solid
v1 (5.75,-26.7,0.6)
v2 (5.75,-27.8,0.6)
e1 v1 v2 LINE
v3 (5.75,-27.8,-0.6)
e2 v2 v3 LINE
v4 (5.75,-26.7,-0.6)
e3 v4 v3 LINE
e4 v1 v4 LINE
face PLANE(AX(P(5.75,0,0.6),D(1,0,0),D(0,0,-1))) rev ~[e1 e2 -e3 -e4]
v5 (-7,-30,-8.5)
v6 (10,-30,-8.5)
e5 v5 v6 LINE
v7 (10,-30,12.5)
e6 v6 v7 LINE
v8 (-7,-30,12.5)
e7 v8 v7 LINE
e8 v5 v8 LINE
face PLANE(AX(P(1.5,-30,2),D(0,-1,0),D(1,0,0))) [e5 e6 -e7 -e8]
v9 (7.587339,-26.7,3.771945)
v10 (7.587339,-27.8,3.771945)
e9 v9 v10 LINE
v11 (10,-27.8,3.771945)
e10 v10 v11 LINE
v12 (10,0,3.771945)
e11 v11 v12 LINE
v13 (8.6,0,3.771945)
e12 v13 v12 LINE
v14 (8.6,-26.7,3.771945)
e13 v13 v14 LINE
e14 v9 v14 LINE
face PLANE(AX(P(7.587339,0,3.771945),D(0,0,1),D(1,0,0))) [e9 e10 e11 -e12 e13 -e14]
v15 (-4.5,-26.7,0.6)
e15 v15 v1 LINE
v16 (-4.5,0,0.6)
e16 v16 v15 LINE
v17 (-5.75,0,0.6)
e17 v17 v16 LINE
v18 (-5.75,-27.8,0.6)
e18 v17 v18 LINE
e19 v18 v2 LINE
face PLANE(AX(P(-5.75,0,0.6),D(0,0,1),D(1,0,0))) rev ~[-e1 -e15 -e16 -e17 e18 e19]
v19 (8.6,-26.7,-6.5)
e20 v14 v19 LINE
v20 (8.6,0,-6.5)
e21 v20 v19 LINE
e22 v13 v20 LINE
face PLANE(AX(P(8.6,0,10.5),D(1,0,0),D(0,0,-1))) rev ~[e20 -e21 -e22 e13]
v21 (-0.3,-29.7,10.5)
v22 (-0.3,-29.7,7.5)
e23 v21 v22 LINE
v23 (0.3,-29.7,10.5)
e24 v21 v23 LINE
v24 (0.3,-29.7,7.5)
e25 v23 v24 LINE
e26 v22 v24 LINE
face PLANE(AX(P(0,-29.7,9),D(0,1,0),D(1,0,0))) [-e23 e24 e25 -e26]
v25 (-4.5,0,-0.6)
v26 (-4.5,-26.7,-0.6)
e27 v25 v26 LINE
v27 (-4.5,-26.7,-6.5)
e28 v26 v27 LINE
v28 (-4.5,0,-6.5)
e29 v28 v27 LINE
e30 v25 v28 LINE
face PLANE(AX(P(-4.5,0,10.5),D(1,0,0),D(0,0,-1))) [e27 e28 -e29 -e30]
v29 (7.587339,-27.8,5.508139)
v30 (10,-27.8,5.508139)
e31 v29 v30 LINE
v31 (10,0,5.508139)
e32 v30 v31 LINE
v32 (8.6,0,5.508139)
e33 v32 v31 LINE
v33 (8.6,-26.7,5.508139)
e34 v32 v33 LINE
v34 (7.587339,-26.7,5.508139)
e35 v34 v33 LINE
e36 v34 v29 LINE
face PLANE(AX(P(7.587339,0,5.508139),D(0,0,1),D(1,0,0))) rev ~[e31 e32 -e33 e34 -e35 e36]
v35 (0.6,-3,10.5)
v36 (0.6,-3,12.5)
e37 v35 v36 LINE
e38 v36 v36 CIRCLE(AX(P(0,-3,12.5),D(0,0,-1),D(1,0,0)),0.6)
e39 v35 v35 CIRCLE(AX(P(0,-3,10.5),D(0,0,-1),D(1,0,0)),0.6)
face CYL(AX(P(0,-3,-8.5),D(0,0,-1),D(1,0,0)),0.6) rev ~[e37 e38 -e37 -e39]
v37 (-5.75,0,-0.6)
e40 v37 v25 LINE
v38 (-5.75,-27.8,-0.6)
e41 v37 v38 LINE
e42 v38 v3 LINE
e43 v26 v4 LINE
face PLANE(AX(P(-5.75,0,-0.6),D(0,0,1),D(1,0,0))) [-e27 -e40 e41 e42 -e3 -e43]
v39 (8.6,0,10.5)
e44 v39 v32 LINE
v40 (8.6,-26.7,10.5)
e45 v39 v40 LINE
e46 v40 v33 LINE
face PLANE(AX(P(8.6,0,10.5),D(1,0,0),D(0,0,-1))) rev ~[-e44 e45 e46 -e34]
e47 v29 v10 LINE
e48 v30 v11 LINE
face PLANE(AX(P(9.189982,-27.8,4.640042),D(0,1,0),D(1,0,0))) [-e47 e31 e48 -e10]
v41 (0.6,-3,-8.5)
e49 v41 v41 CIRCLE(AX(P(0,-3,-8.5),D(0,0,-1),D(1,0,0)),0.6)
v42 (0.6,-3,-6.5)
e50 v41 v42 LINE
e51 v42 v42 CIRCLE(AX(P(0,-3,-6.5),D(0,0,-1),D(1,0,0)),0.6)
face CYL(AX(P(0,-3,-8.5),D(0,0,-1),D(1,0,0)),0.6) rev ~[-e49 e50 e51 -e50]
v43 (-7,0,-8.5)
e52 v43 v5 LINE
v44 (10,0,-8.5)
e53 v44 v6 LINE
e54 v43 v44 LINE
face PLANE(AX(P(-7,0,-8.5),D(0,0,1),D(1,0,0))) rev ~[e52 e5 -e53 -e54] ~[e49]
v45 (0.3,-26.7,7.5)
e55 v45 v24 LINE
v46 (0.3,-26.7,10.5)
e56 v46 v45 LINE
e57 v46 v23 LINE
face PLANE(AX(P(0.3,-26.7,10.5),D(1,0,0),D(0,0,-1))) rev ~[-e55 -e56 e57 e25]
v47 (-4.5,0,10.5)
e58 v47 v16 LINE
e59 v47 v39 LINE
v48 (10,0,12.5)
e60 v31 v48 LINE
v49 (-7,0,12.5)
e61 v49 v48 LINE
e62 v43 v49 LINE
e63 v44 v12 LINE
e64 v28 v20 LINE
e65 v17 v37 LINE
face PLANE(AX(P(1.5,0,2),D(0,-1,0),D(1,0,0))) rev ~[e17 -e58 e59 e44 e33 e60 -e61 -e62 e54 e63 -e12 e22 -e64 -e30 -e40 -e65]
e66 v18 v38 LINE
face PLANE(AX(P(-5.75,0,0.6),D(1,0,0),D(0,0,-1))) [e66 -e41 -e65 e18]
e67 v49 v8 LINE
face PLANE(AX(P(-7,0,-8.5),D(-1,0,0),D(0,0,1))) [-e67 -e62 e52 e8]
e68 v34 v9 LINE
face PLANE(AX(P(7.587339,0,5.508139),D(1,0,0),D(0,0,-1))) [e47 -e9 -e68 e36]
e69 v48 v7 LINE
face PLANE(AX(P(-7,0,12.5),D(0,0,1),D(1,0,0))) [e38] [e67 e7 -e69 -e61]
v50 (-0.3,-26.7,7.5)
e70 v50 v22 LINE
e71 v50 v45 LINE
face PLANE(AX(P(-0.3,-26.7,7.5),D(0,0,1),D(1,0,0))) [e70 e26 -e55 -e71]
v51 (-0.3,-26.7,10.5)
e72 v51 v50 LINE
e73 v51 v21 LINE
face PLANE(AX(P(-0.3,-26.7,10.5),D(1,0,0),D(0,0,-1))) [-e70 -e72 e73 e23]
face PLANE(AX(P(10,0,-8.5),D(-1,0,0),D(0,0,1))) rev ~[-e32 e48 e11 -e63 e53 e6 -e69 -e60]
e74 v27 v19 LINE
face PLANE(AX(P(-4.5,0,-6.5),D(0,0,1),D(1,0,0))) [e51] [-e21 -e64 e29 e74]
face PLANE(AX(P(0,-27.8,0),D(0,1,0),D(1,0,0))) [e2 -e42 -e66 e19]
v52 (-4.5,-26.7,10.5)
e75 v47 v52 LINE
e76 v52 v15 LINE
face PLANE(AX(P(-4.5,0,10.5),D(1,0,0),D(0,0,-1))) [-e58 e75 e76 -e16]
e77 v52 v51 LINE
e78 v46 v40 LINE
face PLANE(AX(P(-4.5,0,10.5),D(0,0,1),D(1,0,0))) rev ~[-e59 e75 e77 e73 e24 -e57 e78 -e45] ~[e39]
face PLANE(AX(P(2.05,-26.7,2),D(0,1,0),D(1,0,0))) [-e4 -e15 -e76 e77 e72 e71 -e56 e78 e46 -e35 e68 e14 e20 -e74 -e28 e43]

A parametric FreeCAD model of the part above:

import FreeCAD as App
import Part
import Sketcher

doc = App.newDocument("Part")
body = doc.addObject("PartDesign::Body", "Body")

sketch1 = body.newObject("Sketcher::SketchObject", "Sketch")
sketch1.AttachmentSupport = (doc.getObject("XZ_Plane"), [""])
sketch1.MapMode = "FlatFace"
sketch1.addGeometry([
    Part.LineSegment(App.Vector(-7, 12, 0), App.Vector(-7, -8, 0)),
    Part.LineSegment(App.Vector(-7, -8, 0), App.Vector(10, -8, 0)),
    Part.LineSegment(App.Vector(10, -8, 0), App.Vector(10, 12, 0)),
    Part.LineSegment(App.Vector(10, 12, 0), App.Vector(-7, 12, 0)),
], False)
sketch1.addConstraint([
    Sketcher.Constraint("Coincident", 0, 2, 1, 1),
    Sketcher.Constraint("Coincident", 1, 2, 2, 1),
    Sketcher.Constraint("Coincident", 2, 2, 3, 1),
    Sketcher.Constraint("Coincident", 3, 2, 0, 1),
    Sketcher.Constraint("Vertical", 0),
    Sketcher.Constraint("Horizontal", 1),
    Sketcher.Constraint("Vertical", 2),
    Sketcher.Constraint("Horizontal", 3),
    Sketcher.Constraint("DistanceX", 1, 1, 1, 2, 17.0),
    Sketcher.Constraint("DistanceY", 0, 2, 0, 1, 21.0),
    Sketcher.Constraint("DistanceX", 0, 2, -1, 1, 7.0),
    Sketcher.Constraint("DistanceY", 0, 2, -1, 1, 8.5),
])
pad1 = body.newObject("PartDesign::Pad", "Pad")
pad1.Profile = sketch1
pad1.Length = 30

sketch2 = body.newObject("Sketcher::SketchObject", "Sketch001")
sketch2.AttachmentSupport = (doc.getObject("XZ_Plane"), [""])
sketch2.MapMode = "FlatFace"
sketch2.addGeometry([
    Part.LineSegment(App.Vector(-4, -6, 0), App.Vector(-4, 10, 0)),
    Part.LineSegment(App.Vector(-4, 10, 0), App.Vector(9, 10, 0)),
    Part.LineSegment(App.Vector(9, 10, 0), App.Vector(9, -6, 0)),
    Part.LineSegment(App.Vector(9, -6, 0), App.Vector(-4, -6, 0)),
], False)
sketch2.addConstraint([
    Sketcher.Constraint("Coincident", 0, 2, 1, 1),
    Sketcher.Constraint("Coincident", 1, 2, 2, 1),
    Sketcher.Constraint("Coincident", 2, 2, 3, 1),
    Sketcher.Constraint("Coincident", 3, 2, 0, 1),
    Sketcher.Constraint("Vertical", 0),
    Sketcher.Constraint("Horizontal", 1),
    Sketcher.Constraint("Vertical", 2),
    Sketcher.Constraint("Horizontal", 3),
    Sketcher.Constraint("DistanceY", 0, 1, 0, 2, 17.0),
    Sketcher.Constraint("DistanceX", 1, 1, 1, 2, 13.1),
    Sketcher.Constraint("DistanceX", 0, 2, -1, 1, 4.5),
    Sketcher.Constraint("DistanceY", -1, 1, 0, 2, 10.5),
])
pocket1 = body.newObject("PartDesign::Pocket", "Pocket")
pocket1.Profile = sketch2
pocket1.Length = 26.7
pocket1.Reversed = True

sketch3 = body.newObject("Sketcher::SketchObject", "Sketch002")
sketch3.AttachmentSupport = (doc.getObject("XZ_Plane"), [""])
sketch3.MapMode = "FlatFace"
sketch3.addGeometry([
    Part.LineSegment(App.Vector(-5.8, -0.6, 0), App.Vector(-5.8, 0.6, 0)),
    Part.LineSegment(App.Vector(-5.8, 0.6, 0), App.Vector(5.8, 0.6, 0)),
    Part.LineSegment(App.Vector(5.8, 0.6, 0), App.Vector(5.8, -0.6, 0)),
    Part.LineSegment(App.Vector(5.8, -0.6, 0), App.Vector(-5.8, -0.6, 0)),
    Part.LineSegment(App.Vector(7.6, 3.8, 0), App.Vector(7.6, 5.5, 0)),
    Part.LineSegment(App.Vector(7.6, 5.5, 0), App.Vector(10.8, 5.5, 0)),
    Part.LineSegment(App.Vector(10.8, 5.5, 0), App.Vector(10.8, 3.8, 0)),
    Part.LineSegment(App.Vector(10.8, 3.8, 0), App.Vector(7.6, 3.8, 0)),
], False)
sketch3.addConstraint([
    Sketcher.Constraint("Coincident", 0, 2, 1, 1),
    Sketcher.Constraint("Coincident", 1, 2, 2, 1),
    Sketcher.Constraint("Coincident", 2, 2, 3, 1),
    Sketcher.Constraint("Coincident", 3, 2, 0, 1),
    Sketcher.Constraint("Coincident", 4, 2, 5, 1),
    Sketcher.Constraint("Coincident", 5, 2, 6, 1),
    Sketcher.Constraint("Coincident", 6, 2, 7, 1),
    Sketcher.Constraint("Coincident", 7, 2, 4, 1),
    Sketcher.Constraint("Vertical", 0),
    Sketcher.Constraint("Horizontal", 1),
    Sketcher.Constraint("Vertical", 2),
    Sketcher.Constraint("Horizontal", 3),
    Sketcher.Constraint("Vertical", 4),
    Sketcher.Constraint("Horizontal", 5),
    Sketcher.Constraint("Vertical", 6),
    Sketcher.Constraint("Horizontal", 7),
    Sketcher.Constraint("Symmetric", 0, 2, 2, 2, -1, 1),
    Sketcher.Constraint("DistanceX", 1, 1, 1, 2, 11.5),
    Sketcher.Constraint("DistanceY", 0, 1, 0, 2, 1.2),
    Sketcher.Constraint("DistanceX", 5, 1, 5, 2, 3.205285),
    Sketcher.Constraint("DistanceY", 4, 1, 4, 2, 1.736194),
    Sketcher.Constraint("DistanceX", -1, 1, 4, 2, 7.587339),
    Sketcher.Constraint("DistanceY", -1, 1, 4, 2, 5.508139),
])
pocket2 = body.newObject("PartDesign::Pocket", "Pocket001")
pocket2.Profile = sketch3
pocket2.Length = 27.8
pocket2.Reversed = True

sketch4 = body.newObject("Sketcher::SketchObject", "Sketch003")
sketch4.AttachmentSupport = (doc.getObject("XY_Plane"), [""])
sketch4.MapMode = "FlatFace"
sketch4.AttachmentOffset = App.Placement(App.Vector(0, 0, -8.5), App.Rotation())
sketch4.addGeometry(Part.Circle(App.Vector(0, -3, 0), App.Vector(0, 0, 1), 0.6), False)
sketch4.addConstraint([
    Sketcher.Constraint("PointOnObject", 0, 3, -2),
    Sketcher.Constraint("Diameter", 0, 1.2),
    Sketcher.Constraint("DistanceY", 0, 3, -1, 1, 3.0),
])
pocket3 = body.newObject("PartDesign::Pocket", "Pocket002")
pocket3.Profile = sketch4
pocket3.Length = 27
pocket3.Reversed = True

sketch5 = body.newObject("Sketcher::SketchObject", "Sketch004")
sketch5.AttachmentSupport = (doc.getObject("XZ_Plane"), [""])
sketch5.MapMode = "FlatFace"
sketch5.AttachmentOffset = App.Placement(App.Vector(0, 0, 26.7), App.Rotation())
sketch5.addGeometry([
    Part.LineSegment(App.Vector(-0.3, 7.5, 0), App.Vector(-0.3, 10.5, 0)),
    Part.LineSegment(App.Vector(-0.3, 10.5, 0), App.Vector(0.3, 10.5, 0)),
    Part.LineSegment(App.Vector(0.3, 10.5, 0), App.Vector(0.3, 7.5, 0)),
    Part.LineSegment(App.Vector(0.3, 7.5, 0), App.Vector(-0.3, 7.5, 0)),
], False)
sketch5.addConstraint([
    Sketcher.Constraint("Coincident", 0, 2, 1, 1),
    Sketcher.Constraint("Coincident", 1, 2, 2, 1),
    Sketcher.Constraint("Coincident", 2, 2, 3, 1),
    Sketcher.Constraint("Coincident", 3, 2, 0, 1),
    Sketcher.Constraint("Vertical", 0),
    Sketcher.Constraint("Horizontal", 1),
    Sketcher.Constraint("Vertical", 2),
    Sketcher.Constraint("Horizontal", 3),
    Sketcher.Constraint("DistanceY", 0, 1, 0, 2, 3.0),
    Sketcher.Constraint("DistanceX", 1, 1, 1, 2, 0.6),
    Sketcher.Constraint("DistanceX", 0, 2, -1, 1, 0.3),
    Sketcher.Constraint("DistanceY", -1, 1, 0, 2, 10.5),
])
pocket4 = body.newObject("PartDesign::Pocket", "Pocket003")
pocket4.Profile = sketch5
pocket4.Length = 3
pocket4.Reversed = True

doc.recompute()
